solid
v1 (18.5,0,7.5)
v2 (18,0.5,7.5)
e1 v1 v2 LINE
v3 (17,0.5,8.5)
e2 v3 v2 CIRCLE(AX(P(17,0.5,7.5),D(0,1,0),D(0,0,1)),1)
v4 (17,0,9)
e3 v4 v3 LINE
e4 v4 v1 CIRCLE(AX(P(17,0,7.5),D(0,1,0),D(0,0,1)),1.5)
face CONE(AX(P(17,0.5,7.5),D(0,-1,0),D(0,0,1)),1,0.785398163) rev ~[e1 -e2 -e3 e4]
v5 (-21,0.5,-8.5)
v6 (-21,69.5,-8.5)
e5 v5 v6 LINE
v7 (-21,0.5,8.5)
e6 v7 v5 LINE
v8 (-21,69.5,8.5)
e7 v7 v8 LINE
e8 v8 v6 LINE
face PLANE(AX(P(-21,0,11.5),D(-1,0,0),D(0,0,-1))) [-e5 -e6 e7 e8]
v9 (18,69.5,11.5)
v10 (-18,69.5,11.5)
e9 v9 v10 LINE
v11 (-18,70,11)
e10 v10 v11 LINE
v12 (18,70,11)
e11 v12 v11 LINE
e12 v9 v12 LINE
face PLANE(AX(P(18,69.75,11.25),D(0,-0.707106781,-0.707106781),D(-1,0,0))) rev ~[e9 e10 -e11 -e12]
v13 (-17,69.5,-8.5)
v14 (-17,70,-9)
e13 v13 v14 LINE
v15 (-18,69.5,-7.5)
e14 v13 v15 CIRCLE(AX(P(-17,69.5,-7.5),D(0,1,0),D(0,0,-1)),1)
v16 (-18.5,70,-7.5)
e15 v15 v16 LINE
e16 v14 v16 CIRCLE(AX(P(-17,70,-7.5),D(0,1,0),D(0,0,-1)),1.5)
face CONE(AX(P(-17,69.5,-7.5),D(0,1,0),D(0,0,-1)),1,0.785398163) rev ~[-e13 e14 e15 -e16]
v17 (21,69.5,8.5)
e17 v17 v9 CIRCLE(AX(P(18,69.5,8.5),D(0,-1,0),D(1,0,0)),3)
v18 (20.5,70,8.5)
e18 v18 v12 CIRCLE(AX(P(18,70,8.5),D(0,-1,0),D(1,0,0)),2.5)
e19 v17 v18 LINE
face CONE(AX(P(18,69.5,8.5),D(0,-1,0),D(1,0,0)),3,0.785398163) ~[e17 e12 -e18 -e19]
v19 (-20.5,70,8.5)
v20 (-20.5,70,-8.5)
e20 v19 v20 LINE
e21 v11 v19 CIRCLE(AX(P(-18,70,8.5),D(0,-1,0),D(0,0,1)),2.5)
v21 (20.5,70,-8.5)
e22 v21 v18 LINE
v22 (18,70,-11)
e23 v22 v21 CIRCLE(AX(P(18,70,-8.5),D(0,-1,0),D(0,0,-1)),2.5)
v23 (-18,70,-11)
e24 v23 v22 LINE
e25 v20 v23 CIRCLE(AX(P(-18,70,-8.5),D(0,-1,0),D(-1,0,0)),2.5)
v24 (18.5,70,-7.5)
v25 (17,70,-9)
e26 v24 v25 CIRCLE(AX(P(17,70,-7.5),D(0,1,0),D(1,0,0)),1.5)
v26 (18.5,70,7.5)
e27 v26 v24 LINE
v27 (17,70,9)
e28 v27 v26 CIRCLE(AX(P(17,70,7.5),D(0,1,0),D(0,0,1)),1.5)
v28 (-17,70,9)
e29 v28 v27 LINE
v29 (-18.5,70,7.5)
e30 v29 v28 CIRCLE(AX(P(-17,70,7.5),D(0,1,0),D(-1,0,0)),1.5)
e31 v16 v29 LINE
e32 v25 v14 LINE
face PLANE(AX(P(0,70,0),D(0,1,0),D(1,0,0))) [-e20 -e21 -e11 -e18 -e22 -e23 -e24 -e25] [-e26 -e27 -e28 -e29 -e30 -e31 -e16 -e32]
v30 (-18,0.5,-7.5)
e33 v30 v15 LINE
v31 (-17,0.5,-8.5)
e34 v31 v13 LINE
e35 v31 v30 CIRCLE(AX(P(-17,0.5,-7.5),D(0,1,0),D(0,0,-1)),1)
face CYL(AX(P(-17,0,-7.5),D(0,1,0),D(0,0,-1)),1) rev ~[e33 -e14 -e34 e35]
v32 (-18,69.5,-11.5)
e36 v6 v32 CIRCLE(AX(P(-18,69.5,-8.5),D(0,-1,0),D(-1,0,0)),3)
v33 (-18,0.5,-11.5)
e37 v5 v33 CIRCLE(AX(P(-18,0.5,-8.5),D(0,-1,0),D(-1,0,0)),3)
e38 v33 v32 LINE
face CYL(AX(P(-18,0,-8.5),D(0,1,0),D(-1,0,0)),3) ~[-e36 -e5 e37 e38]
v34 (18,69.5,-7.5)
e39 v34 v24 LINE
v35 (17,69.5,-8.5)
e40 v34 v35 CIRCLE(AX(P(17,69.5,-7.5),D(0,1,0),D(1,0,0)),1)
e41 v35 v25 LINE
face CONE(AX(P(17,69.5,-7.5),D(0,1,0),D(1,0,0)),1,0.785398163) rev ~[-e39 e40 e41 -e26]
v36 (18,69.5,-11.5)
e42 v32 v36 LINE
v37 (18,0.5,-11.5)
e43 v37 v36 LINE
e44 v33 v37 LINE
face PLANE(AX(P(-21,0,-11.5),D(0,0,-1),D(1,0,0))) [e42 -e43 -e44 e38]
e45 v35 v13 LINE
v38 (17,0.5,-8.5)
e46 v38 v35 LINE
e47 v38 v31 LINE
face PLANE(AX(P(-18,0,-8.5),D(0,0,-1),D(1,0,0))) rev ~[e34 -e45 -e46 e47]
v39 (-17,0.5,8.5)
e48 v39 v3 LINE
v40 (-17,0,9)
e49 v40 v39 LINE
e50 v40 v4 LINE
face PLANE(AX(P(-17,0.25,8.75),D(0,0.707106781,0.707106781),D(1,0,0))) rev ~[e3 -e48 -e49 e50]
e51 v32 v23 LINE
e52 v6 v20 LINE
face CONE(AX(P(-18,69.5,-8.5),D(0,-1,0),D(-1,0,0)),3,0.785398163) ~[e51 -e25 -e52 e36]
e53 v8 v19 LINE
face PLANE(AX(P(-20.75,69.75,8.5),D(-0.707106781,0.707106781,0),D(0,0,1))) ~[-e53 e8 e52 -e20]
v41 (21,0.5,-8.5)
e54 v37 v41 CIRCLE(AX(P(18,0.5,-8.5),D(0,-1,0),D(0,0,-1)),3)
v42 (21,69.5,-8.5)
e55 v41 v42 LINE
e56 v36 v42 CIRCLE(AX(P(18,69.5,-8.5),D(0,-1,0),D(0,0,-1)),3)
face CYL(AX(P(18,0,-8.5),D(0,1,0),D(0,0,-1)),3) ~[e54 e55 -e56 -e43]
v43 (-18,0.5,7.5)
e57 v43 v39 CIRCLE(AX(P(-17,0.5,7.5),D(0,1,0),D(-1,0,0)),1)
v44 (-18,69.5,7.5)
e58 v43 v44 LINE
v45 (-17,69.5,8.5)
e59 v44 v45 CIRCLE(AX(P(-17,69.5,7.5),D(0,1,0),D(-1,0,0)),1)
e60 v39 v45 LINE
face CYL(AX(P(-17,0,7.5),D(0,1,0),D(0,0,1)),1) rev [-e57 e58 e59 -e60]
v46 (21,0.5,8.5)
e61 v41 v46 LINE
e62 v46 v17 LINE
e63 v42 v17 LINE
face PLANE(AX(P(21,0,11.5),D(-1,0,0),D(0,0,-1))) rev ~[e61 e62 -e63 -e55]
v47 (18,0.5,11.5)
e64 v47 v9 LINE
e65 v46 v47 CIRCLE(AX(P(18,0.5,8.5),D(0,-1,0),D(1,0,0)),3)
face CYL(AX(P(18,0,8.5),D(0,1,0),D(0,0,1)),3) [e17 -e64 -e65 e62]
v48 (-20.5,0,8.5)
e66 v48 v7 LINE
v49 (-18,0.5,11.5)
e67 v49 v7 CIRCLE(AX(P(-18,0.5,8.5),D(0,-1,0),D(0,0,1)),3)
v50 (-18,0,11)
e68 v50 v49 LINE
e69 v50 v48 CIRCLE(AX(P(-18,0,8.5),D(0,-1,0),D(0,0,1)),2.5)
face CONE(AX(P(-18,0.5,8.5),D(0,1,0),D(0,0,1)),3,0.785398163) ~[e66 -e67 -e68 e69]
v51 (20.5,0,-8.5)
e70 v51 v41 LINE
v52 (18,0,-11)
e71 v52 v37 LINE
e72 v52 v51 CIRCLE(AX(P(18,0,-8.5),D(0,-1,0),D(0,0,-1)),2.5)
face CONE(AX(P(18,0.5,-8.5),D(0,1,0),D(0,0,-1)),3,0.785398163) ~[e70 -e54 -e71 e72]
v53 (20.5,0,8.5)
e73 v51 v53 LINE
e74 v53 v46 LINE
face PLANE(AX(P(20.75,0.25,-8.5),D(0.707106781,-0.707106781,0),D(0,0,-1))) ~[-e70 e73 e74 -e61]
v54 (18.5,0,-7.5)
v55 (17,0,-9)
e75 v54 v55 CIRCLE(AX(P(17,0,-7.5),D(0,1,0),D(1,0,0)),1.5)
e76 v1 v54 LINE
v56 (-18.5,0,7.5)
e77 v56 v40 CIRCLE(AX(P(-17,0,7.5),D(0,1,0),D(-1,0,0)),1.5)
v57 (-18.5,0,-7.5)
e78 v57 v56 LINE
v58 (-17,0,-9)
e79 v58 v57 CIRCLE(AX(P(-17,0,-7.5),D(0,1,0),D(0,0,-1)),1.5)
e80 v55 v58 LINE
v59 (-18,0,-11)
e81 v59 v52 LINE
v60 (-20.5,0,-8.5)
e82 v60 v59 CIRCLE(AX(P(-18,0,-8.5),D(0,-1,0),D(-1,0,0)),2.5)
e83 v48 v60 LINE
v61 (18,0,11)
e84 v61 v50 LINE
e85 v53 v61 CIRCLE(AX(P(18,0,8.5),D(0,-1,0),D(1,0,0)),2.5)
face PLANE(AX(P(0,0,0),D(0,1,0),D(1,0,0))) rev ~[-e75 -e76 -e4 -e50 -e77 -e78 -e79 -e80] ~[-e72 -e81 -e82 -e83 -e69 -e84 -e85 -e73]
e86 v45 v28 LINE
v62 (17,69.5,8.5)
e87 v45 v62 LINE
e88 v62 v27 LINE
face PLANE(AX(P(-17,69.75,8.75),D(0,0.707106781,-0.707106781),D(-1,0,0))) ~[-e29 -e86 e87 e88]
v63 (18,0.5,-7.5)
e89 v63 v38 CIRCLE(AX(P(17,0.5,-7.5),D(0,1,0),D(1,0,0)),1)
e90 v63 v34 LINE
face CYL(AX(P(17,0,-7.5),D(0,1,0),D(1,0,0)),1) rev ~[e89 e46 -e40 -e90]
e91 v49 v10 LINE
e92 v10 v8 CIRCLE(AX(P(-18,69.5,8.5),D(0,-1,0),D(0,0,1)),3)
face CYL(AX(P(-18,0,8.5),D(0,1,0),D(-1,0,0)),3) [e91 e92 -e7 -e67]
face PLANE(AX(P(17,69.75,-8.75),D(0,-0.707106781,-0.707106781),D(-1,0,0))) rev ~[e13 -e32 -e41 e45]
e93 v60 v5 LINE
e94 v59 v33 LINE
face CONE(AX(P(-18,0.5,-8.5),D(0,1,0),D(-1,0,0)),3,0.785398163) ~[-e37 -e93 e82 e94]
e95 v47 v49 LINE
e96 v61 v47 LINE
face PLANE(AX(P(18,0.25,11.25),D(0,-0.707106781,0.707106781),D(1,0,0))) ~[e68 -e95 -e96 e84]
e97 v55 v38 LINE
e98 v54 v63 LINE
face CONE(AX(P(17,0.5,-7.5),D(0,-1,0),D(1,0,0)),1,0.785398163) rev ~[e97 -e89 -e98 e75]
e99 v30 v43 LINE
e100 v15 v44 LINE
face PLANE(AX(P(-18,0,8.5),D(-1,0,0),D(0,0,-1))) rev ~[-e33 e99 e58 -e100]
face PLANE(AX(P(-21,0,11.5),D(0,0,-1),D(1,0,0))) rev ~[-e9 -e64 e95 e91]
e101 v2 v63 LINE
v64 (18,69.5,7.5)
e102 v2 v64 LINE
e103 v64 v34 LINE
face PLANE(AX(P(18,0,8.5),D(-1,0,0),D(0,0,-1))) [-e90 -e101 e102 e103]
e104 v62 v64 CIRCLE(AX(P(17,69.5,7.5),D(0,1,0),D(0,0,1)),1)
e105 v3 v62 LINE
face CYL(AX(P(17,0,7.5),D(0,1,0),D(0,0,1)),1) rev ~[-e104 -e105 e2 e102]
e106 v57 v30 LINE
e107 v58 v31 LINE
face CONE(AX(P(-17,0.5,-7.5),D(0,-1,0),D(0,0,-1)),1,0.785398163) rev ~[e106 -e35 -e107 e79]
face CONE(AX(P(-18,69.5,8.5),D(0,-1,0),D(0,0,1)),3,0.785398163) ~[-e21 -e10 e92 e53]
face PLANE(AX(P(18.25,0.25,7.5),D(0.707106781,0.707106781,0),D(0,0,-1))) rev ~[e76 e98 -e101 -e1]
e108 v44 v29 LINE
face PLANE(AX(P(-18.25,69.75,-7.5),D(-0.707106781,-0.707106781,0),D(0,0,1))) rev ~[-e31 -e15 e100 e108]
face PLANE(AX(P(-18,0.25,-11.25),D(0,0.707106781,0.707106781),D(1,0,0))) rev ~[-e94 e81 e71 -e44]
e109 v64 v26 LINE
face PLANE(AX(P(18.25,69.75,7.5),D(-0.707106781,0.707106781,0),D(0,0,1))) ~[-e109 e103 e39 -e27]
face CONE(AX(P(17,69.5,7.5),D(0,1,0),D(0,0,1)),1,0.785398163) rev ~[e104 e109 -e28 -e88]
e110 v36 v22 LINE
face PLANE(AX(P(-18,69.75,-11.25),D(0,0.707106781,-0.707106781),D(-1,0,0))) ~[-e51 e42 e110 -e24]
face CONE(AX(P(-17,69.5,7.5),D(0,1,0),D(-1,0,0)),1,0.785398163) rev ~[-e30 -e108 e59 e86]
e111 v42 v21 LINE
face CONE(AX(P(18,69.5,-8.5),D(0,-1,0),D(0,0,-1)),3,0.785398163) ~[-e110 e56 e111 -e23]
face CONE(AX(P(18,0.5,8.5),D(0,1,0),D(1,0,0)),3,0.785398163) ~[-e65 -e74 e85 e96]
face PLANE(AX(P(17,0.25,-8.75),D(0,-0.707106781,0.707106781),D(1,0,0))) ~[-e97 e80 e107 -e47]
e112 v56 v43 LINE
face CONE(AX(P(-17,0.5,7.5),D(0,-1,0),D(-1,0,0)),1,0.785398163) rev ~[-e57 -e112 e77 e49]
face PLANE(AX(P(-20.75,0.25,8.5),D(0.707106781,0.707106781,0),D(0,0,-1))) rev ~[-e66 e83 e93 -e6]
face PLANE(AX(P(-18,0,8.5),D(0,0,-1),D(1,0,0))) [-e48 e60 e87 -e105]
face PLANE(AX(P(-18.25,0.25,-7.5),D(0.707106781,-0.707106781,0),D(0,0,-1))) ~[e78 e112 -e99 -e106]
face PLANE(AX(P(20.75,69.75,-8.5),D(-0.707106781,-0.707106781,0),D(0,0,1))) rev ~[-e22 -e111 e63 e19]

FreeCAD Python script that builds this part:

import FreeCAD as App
import Part
import Sketcher
from FreeCAD import Vector


def edges_at(feature, points):
    """Names of the edges that pass closest to the given points."""
    edges = feature.Shape.Edges
    near = lambda p: min(range(len(edges)), key=lambda i: edges[i].distToShape(Part.Vertex(*p))[0])
    return sorted({f"Edge{near(p) + 1}" for p in points})

doc = App.newDocument("Part")
body = doc.addObject("PartDesign::Body", "Body")

# Sketch on XZ plane
sketch1 = body.newObject("Sketcher::SketchObject", "Sketch")
sketch1.AttachmentSupport = (doc.getObject("XZ_Plane"), [""])
sketch1.MapMode = "FlatFace"
sketch1.addGeometry(Part.LineSegment(Vector(-21, -12, 0), Vector(-21, 12, 0)), False)
sketch1.addGeometry(Part.LineSegment(Vector(-21, 12, 0), Vector(21, 12, 0)), False)
sketch1.addGeometry(Part.LineSegment(Vector(21, 12, 0), Vector(21, -12, 0)), False)
sketch1.addGeometry(Part.LineSegment(Vector(21, -12, 0), Vector(-21, -12, 0)), False)
sketch1.addGeometry(Part.LineSegment(Vector(18, 8, 0), Vector(-18, 8, 0)), False)
sketch1.addGeometry(Part.LineSegment(Vector(-18, 8, 0), Vector(-18, -8, 0)), False)
sketch1.addGeometry(Part.LineSegment(Vector(-18, -8, 0), Vector(18, -8, 0)), False)
sketch1.addGeometry(Part.LineSegment(Vector(18, -8, 0), Vector(18, 8, 0)), False)
sketch1.addConstraint(Sketcher.Constraint("Coincident", 0, 2, 1, 1))
sketch1.addConstraint(Sketcher.Constraint("Coincident", 1, 2, 2, 1))
sketch1.addConstraint(Sketcher.Constraint("Coincident", 2, 2, 3, 1))
sketch1.addConstraint(Sketcher.Constraint("Coincident", 3, 2, 0, 1))
sketch1.addConstraint(Sketcher.Constraint("Coincident", 4, 2, 5, 1))
sketch1.addConstraint(Sketcher.Constraint("Coincident", 5, 2, 6, 1))
sketch1.addConstraint(Sketcher.Constraint("Coincident", 6, 2, 7, 1))
sketch1.addConstraint(Sketcher.Constraint("Coincident", 7, 2, 4, 1))
sketch1.addConstraint(Sketcher.Constraint("Vertical", 0))
sketch1.addConstraint(Sketcher.Constraint("Horizontal", 1))
sketch1.addConstraint(Sketcher.Constraint("Vertical", 2))
sketch1.addConstraint(Sketcher.Constraint("Horizontal", 3))
sketch1.addConstraint(Sketcher.Constraint("Horizontal", 4))
sketch1.addConstraint(Sketcher.Constraint("Vertical", 5))
sketch1.addConstraint(Sketcher.Constraint("Horizontal", 6))
sketch1.addConstraint(Sketcher.Constraint("Vertical", 7))
sketch1.addConstraint(Sketcher.Constraint("Symmetric", 0, 2, 2, 2, -1, 1))
sketch1.addConstraint(Sketcher.Constraint("Symmetric", 4, 2, 6, 2, -1, 1))
sketch1.addConstraint(Sketcher.Constraint("DistanceX", 1, 1, 1, 2, 42.0))
sketch1.addConstraint(Sketcher.Constraint("DistanceX", 4, 2, 4, 1, 36.0))
sketch1.addConstraint(Sketcher.Constraint("DistanceY", 0, 1, 0, 2, 23.0))
sketch1.addConstraint(Sketcher.Constraint("DistanceY", 5, 2, 5, 1, 17.0))
pad1 = body.newObject("PartDesign::Pad", "Pad")
pad1.Profile = sketch1
pad1.Length = 70
pad1.Reversed = True
doc.recompute()

fillet = body.newObject("PartDesign::Fillet", "Fillet")
fillet.Base = (pad1, edges_at(pad1, [
    (-21, 35, -11.5),
    (21, 35, -11.5),
    (21, 35, 11.5),
    (-21, 35, 11.5),
]))
fillet.Radius = 3
doc.recompute()

fillet2 = body.newObject("PartDesign::Fillet", "Fillet001")
fillet2.Base = (fillet, edges_at(fillet, [
    (18, 35, 8.5),
    (18, 35, -8.5),
    (-18, 35, -8.5),
    (-18, 35, 8.5),
]))
fillet2.Radius = 1
doc.recompute()

chamfer = body.newObject("PartDesign::Chamfer", "Chamfer")
chamfer.Base = (fillet2, edges_at(fillet2, [
    (-21, 0, 0),
    (-21, 70, 0),
    (0, 0, -11.5),
    (21, 0, 0),
    (0, 0, 11.5),
    (-20.121, 0, 10.621),
    (20.121, 0, 10.621),
    (20.121, 0, -10.621),
    (-20.121, 0, -10.621),
    (0, 70, -11.5),
    (0, 70, 11.5),
    (21, 70, 0),
    (-20.121, 70, 10.621),
    (20.121, 70, 10.621),
    (20.121, 70, -10.621),
    (-20.121, 70, -10.621),
    (0, 0, 8.5),
    (0, 70, 8.5),
    (18, 0, 0),
    (18, 70, 0),
    (0, 0, -8.5),
    (0, 70, -8.5),
    (-18, 0, 0),
    (-18, 70, 0),
    (17.707, 0, 8.207),
    (17.707, 70, 8.207),
    (17.707, 0, -8.207),
    (17.707, 70, -8.207),
    (-17.707, 0, -8.207),
    (-17.707, 70, -8.207),
    (-17.707, 0, 8.207),
    (-17.707, 70, 8.207),
]))
chamfer.Size = 0.5

doc.recompute()
